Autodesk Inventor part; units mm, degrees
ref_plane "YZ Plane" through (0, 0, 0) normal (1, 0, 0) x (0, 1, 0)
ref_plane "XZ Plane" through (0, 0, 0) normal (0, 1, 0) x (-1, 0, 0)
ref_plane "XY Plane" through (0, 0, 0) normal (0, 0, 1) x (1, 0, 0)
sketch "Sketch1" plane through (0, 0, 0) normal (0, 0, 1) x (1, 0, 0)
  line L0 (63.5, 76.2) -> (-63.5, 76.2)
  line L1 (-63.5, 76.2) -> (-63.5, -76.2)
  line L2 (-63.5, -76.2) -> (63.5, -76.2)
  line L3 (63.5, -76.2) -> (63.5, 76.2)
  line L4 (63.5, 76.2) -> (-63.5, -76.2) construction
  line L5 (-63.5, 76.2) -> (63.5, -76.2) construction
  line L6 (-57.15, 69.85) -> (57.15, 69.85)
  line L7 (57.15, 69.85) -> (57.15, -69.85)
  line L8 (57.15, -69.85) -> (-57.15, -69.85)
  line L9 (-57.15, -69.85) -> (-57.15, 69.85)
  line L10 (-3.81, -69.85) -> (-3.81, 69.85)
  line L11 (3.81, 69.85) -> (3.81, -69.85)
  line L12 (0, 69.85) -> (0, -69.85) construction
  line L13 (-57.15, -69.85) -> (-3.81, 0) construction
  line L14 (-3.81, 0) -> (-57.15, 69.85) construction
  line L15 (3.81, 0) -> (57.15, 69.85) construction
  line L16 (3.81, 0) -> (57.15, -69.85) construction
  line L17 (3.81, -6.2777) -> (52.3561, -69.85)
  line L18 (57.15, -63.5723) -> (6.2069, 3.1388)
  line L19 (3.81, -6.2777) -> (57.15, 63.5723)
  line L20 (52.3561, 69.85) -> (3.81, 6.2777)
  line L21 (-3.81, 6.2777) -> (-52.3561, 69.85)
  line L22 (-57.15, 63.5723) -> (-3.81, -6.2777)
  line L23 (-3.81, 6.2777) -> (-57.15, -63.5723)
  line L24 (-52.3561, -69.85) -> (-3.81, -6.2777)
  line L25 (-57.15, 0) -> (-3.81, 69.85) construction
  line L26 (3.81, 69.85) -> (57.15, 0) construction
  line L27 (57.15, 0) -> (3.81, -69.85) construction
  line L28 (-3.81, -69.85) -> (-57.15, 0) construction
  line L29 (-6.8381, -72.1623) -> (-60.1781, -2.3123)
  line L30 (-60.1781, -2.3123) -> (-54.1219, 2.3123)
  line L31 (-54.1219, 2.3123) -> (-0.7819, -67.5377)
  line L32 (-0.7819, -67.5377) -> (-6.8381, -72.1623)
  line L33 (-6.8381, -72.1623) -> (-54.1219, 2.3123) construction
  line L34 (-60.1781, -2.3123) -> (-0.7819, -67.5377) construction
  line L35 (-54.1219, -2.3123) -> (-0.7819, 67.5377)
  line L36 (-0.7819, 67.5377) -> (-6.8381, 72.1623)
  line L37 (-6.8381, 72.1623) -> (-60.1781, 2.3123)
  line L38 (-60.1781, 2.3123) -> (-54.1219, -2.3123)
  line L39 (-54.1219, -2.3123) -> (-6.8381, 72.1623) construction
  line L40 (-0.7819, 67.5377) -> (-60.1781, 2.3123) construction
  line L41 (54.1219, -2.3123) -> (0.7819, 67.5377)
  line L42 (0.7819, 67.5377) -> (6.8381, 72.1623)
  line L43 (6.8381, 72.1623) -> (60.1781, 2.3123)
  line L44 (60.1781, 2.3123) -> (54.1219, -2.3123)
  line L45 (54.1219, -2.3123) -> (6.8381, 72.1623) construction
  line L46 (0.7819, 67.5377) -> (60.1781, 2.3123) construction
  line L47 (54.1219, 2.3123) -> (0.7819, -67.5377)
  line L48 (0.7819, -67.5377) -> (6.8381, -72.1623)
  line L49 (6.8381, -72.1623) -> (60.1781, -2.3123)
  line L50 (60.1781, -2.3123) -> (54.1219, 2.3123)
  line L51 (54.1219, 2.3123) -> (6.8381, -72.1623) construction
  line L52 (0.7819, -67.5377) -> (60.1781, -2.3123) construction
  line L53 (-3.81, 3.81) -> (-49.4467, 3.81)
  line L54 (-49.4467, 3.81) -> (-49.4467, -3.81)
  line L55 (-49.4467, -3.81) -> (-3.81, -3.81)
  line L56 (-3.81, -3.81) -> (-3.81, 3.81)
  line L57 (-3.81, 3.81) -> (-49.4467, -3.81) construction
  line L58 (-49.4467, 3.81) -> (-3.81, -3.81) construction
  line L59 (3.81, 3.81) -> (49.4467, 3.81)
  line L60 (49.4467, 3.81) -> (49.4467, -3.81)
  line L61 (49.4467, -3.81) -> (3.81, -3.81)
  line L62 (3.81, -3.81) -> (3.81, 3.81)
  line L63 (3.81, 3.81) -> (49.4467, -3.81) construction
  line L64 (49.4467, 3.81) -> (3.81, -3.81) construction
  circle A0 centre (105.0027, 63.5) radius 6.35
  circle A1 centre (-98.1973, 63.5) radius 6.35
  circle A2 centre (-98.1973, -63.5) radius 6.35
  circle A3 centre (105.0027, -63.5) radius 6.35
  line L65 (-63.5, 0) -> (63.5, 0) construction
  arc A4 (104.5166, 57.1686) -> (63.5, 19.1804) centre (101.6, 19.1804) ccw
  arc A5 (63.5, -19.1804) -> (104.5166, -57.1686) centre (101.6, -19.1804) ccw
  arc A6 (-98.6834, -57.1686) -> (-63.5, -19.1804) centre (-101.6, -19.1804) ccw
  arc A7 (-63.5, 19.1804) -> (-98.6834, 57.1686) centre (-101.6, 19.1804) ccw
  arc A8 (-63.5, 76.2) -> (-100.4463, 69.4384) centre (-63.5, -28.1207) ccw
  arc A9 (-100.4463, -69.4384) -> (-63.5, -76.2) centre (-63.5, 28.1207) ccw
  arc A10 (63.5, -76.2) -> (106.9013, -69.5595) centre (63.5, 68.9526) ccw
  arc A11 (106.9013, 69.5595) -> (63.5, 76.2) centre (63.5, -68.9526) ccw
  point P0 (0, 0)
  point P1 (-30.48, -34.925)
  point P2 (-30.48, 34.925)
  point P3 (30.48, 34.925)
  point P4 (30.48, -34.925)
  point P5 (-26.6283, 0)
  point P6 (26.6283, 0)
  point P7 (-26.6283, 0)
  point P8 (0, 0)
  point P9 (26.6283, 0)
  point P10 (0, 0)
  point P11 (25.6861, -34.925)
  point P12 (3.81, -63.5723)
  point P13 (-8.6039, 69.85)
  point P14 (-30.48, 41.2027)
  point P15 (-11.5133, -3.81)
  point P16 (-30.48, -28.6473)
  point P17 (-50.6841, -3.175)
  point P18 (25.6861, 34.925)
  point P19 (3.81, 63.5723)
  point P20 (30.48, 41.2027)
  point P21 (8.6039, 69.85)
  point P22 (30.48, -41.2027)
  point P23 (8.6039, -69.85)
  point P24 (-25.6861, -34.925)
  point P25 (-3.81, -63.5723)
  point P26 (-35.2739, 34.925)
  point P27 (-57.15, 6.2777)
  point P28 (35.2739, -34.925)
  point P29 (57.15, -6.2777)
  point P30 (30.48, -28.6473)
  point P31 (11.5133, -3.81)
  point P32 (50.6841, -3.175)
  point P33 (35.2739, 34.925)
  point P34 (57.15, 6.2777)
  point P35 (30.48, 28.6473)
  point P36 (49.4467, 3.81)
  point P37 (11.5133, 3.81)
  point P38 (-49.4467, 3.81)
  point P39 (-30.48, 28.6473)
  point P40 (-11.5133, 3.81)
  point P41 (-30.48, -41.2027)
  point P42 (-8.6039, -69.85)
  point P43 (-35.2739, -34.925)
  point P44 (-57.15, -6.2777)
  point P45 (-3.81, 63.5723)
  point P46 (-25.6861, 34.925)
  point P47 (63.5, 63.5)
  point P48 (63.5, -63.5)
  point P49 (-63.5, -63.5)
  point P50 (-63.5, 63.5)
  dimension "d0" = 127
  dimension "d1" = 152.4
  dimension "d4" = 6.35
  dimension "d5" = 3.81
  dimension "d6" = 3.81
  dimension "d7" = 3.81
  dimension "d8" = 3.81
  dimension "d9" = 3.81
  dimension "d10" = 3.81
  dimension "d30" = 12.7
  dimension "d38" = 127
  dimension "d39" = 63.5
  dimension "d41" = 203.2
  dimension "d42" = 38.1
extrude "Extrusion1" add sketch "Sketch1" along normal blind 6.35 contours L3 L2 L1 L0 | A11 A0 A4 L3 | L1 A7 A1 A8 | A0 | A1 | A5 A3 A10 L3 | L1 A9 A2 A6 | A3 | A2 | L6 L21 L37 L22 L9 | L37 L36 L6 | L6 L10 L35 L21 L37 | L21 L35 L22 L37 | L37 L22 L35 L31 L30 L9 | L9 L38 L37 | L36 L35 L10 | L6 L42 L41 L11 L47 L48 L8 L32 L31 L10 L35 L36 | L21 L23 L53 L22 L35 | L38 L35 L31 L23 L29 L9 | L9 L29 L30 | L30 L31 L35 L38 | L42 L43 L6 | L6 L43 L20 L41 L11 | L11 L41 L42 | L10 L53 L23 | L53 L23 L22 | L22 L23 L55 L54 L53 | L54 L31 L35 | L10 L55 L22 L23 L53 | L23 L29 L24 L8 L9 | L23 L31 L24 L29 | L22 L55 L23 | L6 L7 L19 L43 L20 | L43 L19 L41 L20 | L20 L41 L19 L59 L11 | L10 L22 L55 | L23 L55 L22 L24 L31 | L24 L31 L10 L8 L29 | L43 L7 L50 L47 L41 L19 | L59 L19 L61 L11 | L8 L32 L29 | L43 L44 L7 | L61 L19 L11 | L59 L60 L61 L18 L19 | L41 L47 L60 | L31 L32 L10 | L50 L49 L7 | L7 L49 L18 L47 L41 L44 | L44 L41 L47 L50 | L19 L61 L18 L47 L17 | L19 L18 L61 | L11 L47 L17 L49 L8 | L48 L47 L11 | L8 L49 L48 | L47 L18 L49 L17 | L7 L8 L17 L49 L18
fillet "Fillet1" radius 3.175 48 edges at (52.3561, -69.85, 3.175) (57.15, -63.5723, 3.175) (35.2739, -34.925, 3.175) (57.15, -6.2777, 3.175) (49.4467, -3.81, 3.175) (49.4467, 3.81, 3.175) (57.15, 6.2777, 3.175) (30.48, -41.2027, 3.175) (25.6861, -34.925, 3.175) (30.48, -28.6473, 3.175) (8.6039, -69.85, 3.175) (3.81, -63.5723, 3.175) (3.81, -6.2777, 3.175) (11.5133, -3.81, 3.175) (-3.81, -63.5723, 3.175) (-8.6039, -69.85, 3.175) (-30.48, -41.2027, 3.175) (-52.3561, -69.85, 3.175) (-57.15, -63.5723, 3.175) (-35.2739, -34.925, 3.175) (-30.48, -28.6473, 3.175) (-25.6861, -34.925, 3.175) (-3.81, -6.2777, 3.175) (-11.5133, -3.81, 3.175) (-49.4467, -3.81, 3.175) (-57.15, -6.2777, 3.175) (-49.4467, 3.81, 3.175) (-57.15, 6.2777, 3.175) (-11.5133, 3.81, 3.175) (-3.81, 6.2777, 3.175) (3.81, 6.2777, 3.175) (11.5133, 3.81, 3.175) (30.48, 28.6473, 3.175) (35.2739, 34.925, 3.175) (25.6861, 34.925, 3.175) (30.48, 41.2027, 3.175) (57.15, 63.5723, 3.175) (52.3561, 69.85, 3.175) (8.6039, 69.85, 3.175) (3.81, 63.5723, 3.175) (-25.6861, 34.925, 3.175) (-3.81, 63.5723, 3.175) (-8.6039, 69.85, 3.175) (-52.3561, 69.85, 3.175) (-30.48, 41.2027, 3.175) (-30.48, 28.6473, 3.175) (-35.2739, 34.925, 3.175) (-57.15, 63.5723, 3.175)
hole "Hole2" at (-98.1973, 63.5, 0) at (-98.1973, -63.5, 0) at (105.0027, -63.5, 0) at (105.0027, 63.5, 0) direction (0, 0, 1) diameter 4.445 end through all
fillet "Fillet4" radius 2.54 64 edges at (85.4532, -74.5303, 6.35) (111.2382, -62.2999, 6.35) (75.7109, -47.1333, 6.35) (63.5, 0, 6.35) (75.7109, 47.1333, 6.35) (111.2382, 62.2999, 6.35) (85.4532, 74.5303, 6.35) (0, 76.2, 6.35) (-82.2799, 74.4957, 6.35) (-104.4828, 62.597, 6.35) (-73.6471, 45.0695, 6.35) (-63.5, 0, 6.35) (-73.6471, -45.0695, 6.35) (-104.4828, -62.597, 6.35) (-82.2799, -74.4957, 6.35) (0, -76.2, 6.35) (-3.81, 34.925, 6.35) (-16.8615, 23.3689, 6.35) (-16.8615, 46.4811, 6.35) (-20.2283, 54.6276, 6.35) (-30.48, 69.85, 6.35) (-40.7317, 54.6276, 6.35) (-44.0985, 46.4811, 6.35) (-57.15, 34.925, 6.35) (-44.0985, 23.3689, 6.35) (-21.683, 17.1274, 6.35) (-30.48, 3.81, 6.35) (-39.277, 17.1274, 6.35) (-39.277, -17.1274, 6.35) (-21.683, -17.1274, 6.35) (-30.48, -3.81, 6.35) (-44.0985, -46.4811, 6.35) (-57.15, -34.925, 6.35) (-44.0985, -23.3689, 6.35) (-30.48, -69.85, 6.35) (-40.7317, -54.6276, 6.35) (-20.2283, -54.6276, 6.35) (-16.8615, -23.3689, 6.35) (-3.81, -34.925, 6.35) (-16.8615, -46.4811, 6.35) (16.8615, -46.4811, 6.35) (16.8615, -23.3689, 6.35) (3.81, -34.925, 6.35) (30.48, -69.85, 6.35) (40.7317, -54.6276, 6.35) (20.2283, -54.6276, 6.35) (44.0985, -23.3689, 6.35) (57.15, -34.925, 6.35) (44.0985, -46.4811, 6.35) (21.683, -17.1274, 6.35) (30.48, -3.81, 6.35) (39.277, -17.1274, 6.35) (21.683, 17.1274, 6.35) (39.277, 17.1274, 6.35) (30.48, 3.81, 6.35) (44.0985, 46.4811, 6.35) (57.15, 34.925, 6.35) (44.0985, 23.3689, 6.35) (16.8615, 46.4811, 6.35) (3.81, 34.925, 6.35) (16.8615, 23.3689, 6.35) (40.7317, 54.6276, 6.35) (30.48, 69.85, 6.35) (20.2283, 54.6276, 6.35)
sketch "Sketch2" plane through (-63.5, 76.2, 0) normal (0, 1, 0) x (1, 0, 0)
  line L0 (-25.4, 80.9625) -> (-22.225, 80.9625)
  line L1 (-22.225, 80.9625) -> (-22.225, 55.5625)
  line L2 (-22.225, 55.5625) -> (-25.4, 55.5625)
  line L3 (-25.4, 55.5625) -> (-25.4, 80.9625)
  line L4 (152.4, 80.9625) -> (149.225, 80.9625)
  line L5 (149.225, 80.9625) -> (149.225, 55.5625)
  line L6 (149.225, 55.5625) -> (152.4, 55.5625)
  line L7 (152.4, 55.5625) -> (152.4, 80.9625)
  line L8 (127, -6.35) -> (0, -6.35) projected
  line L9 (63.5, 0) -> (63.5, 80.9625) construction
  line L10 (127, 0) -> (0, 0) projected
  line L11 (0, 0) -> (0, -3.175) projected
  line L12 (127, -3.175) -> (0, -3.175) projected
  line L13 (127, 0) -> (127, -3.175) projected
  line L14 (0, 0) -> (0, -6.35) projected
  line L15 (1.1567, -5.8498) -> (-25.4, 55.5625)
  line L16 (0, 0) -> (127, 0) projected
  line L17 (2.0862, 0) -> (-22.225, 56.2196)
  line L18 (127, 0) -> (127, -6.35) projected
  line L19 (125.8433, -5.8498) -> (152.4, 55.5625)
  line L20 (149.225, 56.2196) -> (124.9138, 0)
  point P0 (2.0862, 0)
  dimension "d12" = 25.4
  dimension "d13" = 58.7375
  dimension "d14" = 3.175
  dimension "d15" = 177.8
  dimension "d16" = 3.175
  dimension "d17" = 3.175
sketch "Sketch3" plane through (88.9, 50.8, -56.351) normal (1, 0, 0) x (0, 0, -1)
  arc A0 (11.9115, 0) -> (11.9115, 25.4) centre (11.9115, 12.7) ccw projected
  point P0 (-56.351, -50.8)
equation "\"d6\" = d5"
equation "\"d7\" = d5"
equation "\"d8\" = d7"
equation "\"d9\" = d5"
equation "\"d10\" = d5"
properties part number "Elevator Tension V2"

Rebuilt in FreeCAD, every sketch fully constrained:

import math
import FreeCAD as App
import Part
import Sketcher

V = App.Vector
Q = App.Units.Quantity


def edges_at(feature, points):
    """Names of the edges that pass closest to the given points."""
    edges = feature.Shape.Edges
    near = lambda p: min(range(len(edges)), key=lambda i: edges[i].distToShape(Part.Vertex(*p))[0])
    return sorted({f"Edge{near(p) + 1}" for p in points})


def add_polygon(sketch, points):
    """Adds a closed chain of lines whose ends are joined by coincident constraints."""
    first, n = sketch.GeometryCount, len(points)
    for a, b in zip(points, points[1:] + points[:1]):
        sketch.addGeometry(Part.LineSegment(App.Vector(*a, 0), App.Vector(*b, 0)), False)
    for i in range(n):
        sketch.addConstraint(Sketcher.Constraint("Coincident", first + i, 2, first + (i + 1) % n, 1))

doc = App.newDocument("Part")
body = doc.addObject("PartDesign::Body", "Body")

sketch1 = doc.addObject("Sketcher::SketchObject", "Sketch")
body.addObject(sketch1)
sketch1.AttachmentSupport = (doc.XY_Plane, [""])
sketch1.MapMode = "FlatFace"
sketch1.addGeometry(Part.LineSegment(V(64, -19, 0), V(64, 19, 0)), False)
sketch1.addGeometry(Part.ArcOfCircle(Part.Circle(V(102, 19, 0), V(0, 0, 1), 38), math.radians(86), math.radians(180)), False)
sketch1.addGeometry(Part.ArcOfCircle(Part.Circle(V(105, 64, 0), V(0, 0, 1), 6), math.radians(-94), math.radians(73)), False)
sketch1.addGeometry(Part.ArcOfCircle(Part.Circle(V(64, -69, 0), V(0, 0, 1), 145), math.radians(72.6), math.radians(90)), False)
sketch1.addGeometry(Part.LineSegment(V(64, 76, 0), V(-64, 76, 0)), False)
sketch1.addGeometry(Part.ArcOfCircle(Part.Circle(V(-64, -28, 0), V(0, 0, 1), 104), math.radians(90), math.radians(111)), False)
sketch1.addGeometry(Part.ArcOfCircle(Part.Circle(V(-98, 64, 0), V(0, 0, 1), 6), math.radians(111), math.radians(266)), False)
sketch1.addGeometry(Part.ArcOfCircle(Part.Circle(V(-102, 19, 0), V(0, 0, 1), 38), math.radians(0), math.radians(86)), False)
sketch1.addGeometry(Part.LineSegment(V(-64, 19, 0), V(-64, -19, 0)), False)
sketch1.addGeometry(Part.ArcOfCircle(Part.Circle(V(-102, -19, 0), V(0, 0, 1), 38), math.radians(-86), math.radians(0)), False)
sketch1.addGeometry(Part.ArcOfCircle(Part.Circle(V(-98, -64, 0), V(0, 0, 1), 6), math.radians(94), math.radians(249)), False)
sketch1.addGeometry(Part.ArcOfCircle(Part.Circle(V(-64, 28, 0), V(0, 0, 1), 104), math.radians(-111), math.radians(-90)), False)
sketch1.addGeometry(Part.LineSegment(V(-64, -76, 0), V(64, -76, 0)), False)
sketch1.addGeometry(Part.ArcOfCircle(Part.Circle(V(64, 69, 0), V(0, 0, 1), 145), math.radians(-90), math.radians(-72.6)), False)
sketch1.addGeometry(Part.ArcOfCircle(Part.Circle(V(105, -64, 0), V(0, 0, 1), 6), math.radians(-73), math.radians(94)), False)
sketch1.addGeometry(Part.ArcOfCircle(Part.Circle(V(102, -19, 0), V(0, 0, 1), 38), math.radians(180), math.radians(274)), False)
add_polygon(sketch1, [(-57, 6), (-57, 64), (-35, 35)])
add_polygon(sketch1, [(-57, -64), (-57, -6), (-35, -35)])
add_polygon(sketch1, [(-9, -70), (-52, -70), (-30, -41)])
add_polygon(sketch1, [(52, -70), (9, -70), (30, -41)])
add_polygon(sketch1, [(57, -6), (57, -64), (35, -35)])
add_polygon(sketch1, [(57, 64), (57, 6), (35, 35)])
add_polygon(sketch1, [(9, 70), (52, 70), (30, 41)])
add_polygon(sketch1, [(-52, 70), (-9, 70), (-30, 41)])
add_polygon(sketch1, [(4, 6), (4, 64), (26, 35)])
add_polygon(sketch1, [(4, -64), (4, -6), (26, -35)])
add_polygon(sketch1, [(-4, -6), (-4, -64), (-26, -35)])
add_polygon(sketch1, [(-4, 64), (-4, 6), (-26, 35)])
add_polygon(sketch1, [(-49, 4), (-30, 29), (-12, 4)])
add_polygon(sketch1, [(-30, -29), (-49, -4), (-12, -4)])
add_polygon(sketch1, [(12, 4), (30, 29), (49, 4)])
add_polygon(sketch1, [(49, -4), (30, -29), (12, -4)])
sketch1.addConstraint([
    Sketcher.Constraint("Tangent", 0, 2, 1, 2),
    Sketcher.Constraint("Tangent", 1, 1, 2, 1),
    Sketcher.Constraint("Tangent", 2, 2, 3, 1),
    Sketcher.Constraint("Tangent", 3, 2, 4, 1),
    Sketcher.Constraint("Tangent", 4, 2, 5, 1),
    Sketcher.Constraint("Tangent", 5, 2, 6, 1),
    Sketcher.Constraint("Tangent", 6, 2, 7, 2),
    Sketcher.Constraint("Tangent", 7, 1, 8, 1),
    Sketcher.Constraint("Tangent", 8, 2, 9, 2),
    Sketcher.Constraint("Tangent", 9, 1, 10, 1),
    Sketcher.Constraint("Tangent", 10, 2, 11, 1),
    Sketcher.Constraint("Tangent", 11, 2, 12, 1),
    Sketcher.Constraint("Tangent", 12, 2, 13, 1),
    Sketcher.Constraint("Tangent", 13, 2, 14, 1),
    Sketcher.Constraint("Tangent", 14, 2, 15, 2),
    Sketcher.Constraint("Tangent", 15, 1, 0, 1),
    Sketcher.Constraint("Vertical", 0),
    Sketcher.Constraint("Horizontal", 4),
    Sketcher.Constraint("Vertical", 8),
    Sketcher.Constraint("Horizontal", 12),
    Sketcher.Constraint("Vertical", 16),
    Sketcher.Constraint("Vertical", 19),
    Sketcher.Constraint("Horizontal", 22),
    Sketcher.Constraint("Horizontal", 25),
    Sketcher.Constraint("Vertical", 28),
    Sketcher.Constraint("Vertical", 31),
    Sketcher.Constraint("Horizontal", 34),
    Sketcher.Constraint("Horizontal", 37),
    Sketcher.Constraint("Vertical", 40),
    Sketcher.Constraint("Vertical", 43),
    Sketcher.Constraint("Vertical", 46),
    Sketcher.Constraint("Vertical", 49),
    Sketcher.Constraint("Horizontal", 54),
    Sketcher.Constraint("Horizontal", 56),
    Sketcher.Constraint("Horizontal", 60),
    Sketcher.Constraint("Horizontal", 63),
    Sketcher.Constraint("Equal", 2, 6),
    Sketcher.Constraint("Equal", 1, 7),
    Sketcher.Constraint("Equal", 7, 9),
    Sketcher.Constraint("Equal", 6, 10),
    Sketcher.Constraint("Equal", 5, 11),
    Sketcher.Constraint("Equal", 3, 13),
    Sketcher.Constraint("Equal", 10, 14),
    Sketcher.Constraint("Equal", 9, 15),
    Sketcher.Constraint("Symmetric", 1, 3, 9, 3, -1, 1),
    Sketcher.Constraint("Symmetric", 3, 2, 11, 2, -1, 1),
    Sketcher.Constraint("Symmetric", 16, 2, 28, 2, -1, 1),
    Sketcher.Constraint("Symmetric", 17, 2, 29, 2, -1, 1),
    Sketcher.Constraint("Symmetric", 19, 2, 31, 2, -1, 1),
    Sketcher.Constraint("Symmetric", 20, 2, 32, 2, -1, 1),
    Sketcher.Constraint("Symmetric", 22, 2, 34, 2, -1, 1),
    Sketcher.Constraint("Symmetric", 23, 2, 35, 2, -1, 1),
    Sketcher.Constraint("Symmetric", 25, 2, 37, 2, -1, 1),
    Sketcher.Constraint("Symmetric", 26, 2, 38, 2, -1, 1),
    Sketcher.Constraint("Symmetric", 40, 2, 46, 2, -1, 1),
    Sketcher.Constraint("Symmetric", 41, 2, 47, 2, -1, 1),
    Sketcher.Constraint("Symmetric", 43, 2, 49, 2, -1, 1),
    Sketcher.Constraint("Symmetric", 44, 2, 50, 2, -1, 1),
    Sketcher.Constraint("Symmetric", 57, 2, 58, 2, -1, 1),
    Sketcher.Constraint("Symmetric", 55, 2, 59, 2, -1, 1),
    Sketcher.Constraint("Symmetric", 52, 2, 61, 2, -1, 1),
    Sketcher.Constraint("Symmetric", 53, 2, 62, 2, -1, 1),
    Sketcher.Constraint("Symmetric", 24, 2, 25, 2, -2),
    Sketcher.Constraint("Symmetric", 23, 2, 26, 2, -2),
    Sketcher.Constraint("Symmetric", 21, 2, 28, 2, -2),
    Sketcher.Constraint("Symmetric", 20, 2, 29, 2, -2),
    Sketcher.Constraint("Symmetric", 45, 2, 46, 2, -2),
    Sketcher.Constraint("Symmetric", 44, 2, 47, 2, -2),
    Sketcher.Constraint("Symmetric", 52, 2, 58, 2, -2),
    Sketcher.Constraint("Symmetric", 54, 2, 59, 2, -2),
    Sketcher.Constraint("Symmetric", 6, 3, 10, 3, -1),
    Sketcher.Constraint("Symmetric", 2, 3, 14, 3, -1),
    Sketcher.Constraint("Parallel", 17, 20),
    Sketcher.Constraint("Parallel", 18, 21),
    Sketcher.Constraint("Parallel", 21, 23),
    Sketcher.Constraint("Parallel", 20, 24),
    Sketcher.Constraint("Parallel", 24, 27),
    Sketcher.Constraint("Parallel", 26, 30),
    Sketcher.Constraint("Parallel", 30, 33),
    Sketcher.Constraint("Parallel", 32, 36),
    Sketcher.Constraint("Parallel", 36, 39),
    Sketcher.Constraint("Parallel", 39, 41),
    Sketcher.Constraint("Parallel", 38, 42),
    Sketcher.Constraint("Parallel", 41, 44),
    Sketcher.Constraint("Parallel", 45, 48),
    Sketcher.Constraint("Parallel", 48, 51),
    Sketcher.Constraint("Parallel", 51, 52),
    Sketcher.Constraint("Parallel", 50, 53),
    Sketcher.Constraint("Parallel", 52, 57),
    Sketcher.Constraint("Parallel", 57, 58),
    Sketcher.Constraint("Parallel", 58, 61),
    Sketcher.Constraint("Horizontal", 2, 3, 6, 3),
    Sketcher.Constraint("Horizontal", 33, 2, 40, 2),
    Sketcher.Constraint("Horizontal", 32, 2, 41, 2),
    Sketcher.Constraint("Vertical", 13, 3, 0, 2),
    Sketcher.Constraint("Vertical", 38, 2, 52, 2),
    Sketcher.Constraint("Equal", 21, 23),
    Sketcher.Constraint("Radius", 1, Q("1.5 in")),
    Sketcher.Constraint("DistanceX", 4, 2, 4, 1, Q("5 in")),
    Sketcher.Constraint("Radius", 2, Q("0.25 in")),
    Sketcher.Constraint("DistanceY", -1, 1, 2, 3, Q("2.5 in")),
    Sketcher.Constraint("DistanceX", -1, 1, 40, 2, Q("0.15 in")),
    Sketcher.Constraint("DistanceY", -1, 1, 53, 2, Q("0.15 in")),
    Sketcher.Constraint("DistanceY", -1, 1, 3, 2, Q("3 in")),
    Sketcher.Constraint("DistanceX", 23, 2, -1, 1, Q("1.2 in")),
    Sketcher.Constraint("DistanceX", 16, 2, -1, 1, Q("2.25 in")),
    Sketcher.Constraint("DistanceY", 22, 2, -1, 1, Q("2.75 in")),
    Sketcher.Constraint("Radius", 3, Q("145.1526 mm")),
    Sketcher.Constraint("DistanceY", 16, 1, 16, 2, Q("2.2557 in")),
    Sketcher.Constraint("DistanceY", -1, 1, 17, 2, Q("1.375 in")),
    Sketcher.Constraint("Distance", 17, Q("1.4191 in")),
    Sketcher.Constraint("DistanceX", 54, 2, 54, 1, Q("37.9334 mm")),
])
pad1 = doc.addObject("PartDesign::Pad", "Pad")
body.addObject(pad1)
pad1.Profile = sketch1
pad1.Length = Q("0.25 in")
doc.recompute()

fillet = doc.addObject("PartDesign::Fillet", "Fillet")
body.addObject(fillet)
fillet.Base = (pad1, edges_at(pad1, [
    (52.356, -69.85, 3.175),
    (57.15, -63.572, 3.175),
    (35.274, -34.925, 3.175),
    (57.15, -6.278, 3.175),
    (49.447, -3.81, 3.175),
    (49.447, 3.81, 3.175),
    (57.15, 6.278, 3.175),
    (30.48, -41.203, 3.175),
    (25.686, -34.925, 3.175),
    (30.48, -28.647, 3.175),
    (8.604, -69.85, 3.175),
    (3.81, -63.572, 3.175),
    (3.81, -6.278, 3.175),
    (11.513, -3.81, 3.175),
    (-3.81, -63.572, 3.175),
    (-8.604, -69.85, 3.175),
    (-30.48, -41.203, 3.175),
    (-52.356, -69.85, 3.175),
    (-57.15, -63.572, 3.175),
    (-35.274, -34.925, 3.175),
    (-30.48, -28.647, 3.175),
    (-25.686, -34.925, 3.175),
    (-3.81, -6.278, 3.175),
    (-11.513, -3.81, 3.175),
    (-49.447, -3.81, 3.175),
    (-57.15, -6.278, 3.175),
    (-49.447, 3.81, 3.175),
    (-57.15, 6.278, 3.175),
    (-11.513, 3.81, 3.175),
    (-3.81, 6.278, 3.175),
    (3.81, 6.278, 3.175),
    (11.513, 3.81, 3.175),
    (30.48, 28.647, 3.175),
    (35.274, 34.925, 3.175),
    (25.686, 34.925, 3.175),
    (30.48, 41.203, 3.175),
    (57.15, 63.572, 3.175),
    (52.356, 69.85, 3.175),
    (8.604, 69.85, 3.175),
    (3.81, 63.572, 3.175),
    (-25.686, 34.925, 3.175),
    (-3.81, 63.572, 3.175),
    (-8.604, 69.85, 3.175),
    (-52.356, 69.85, 3.175),
    (-30.48, 41.203, 3.175),
    (-30.48, 28.647, 3.175),
    (-35.274, 34.925, 3.175),
    (-57.15, 63.572, 3.175),
]))
fillet.Radius = Q("0.125 in")

sketch2 = doc.addObject("Sketcher::SketchObject", "Sketch001")
body.addObject(sketch2)
sketch2.AttachmentSupport = (doc.XY_Plane, [""])
sketch2.MapMode = "FlatFace"
sketch2.addGeometry([
    Part.Circle(V(-98.2, 63.5, 0), V(0, 0, 1), 2.2),
    Part.Circle(V(-98.2, -63.5, 0), V(0, 0, 1), 2.2),
    Part.Circle(V(105, -63.5, 0), V(0, 0, 1), 2.2),
    Part.Circle(V(105, 63.5, 0), V(0, 0, 1), 2.2),
], False)
sketch2.addConstraint([
    Sketcher.Constraint("Equal", 0, 1),
    Sketcher.Constraint("Equal", 1, 2),
    Sketcher.Constraint("Equal", 2, 3),
    Sketcher.Constraint("Symmetric", 0, 3, 1, 3, -1),
    Sketcher.Constraint("Symmetric", 2, 3, 3, 3, -1),
    Sketcher.Constraint("Horizontal", 1, 3, 2, 3),
    Sketcher.Constraint("Diameter", 0, Q("0.175 in")),
    Sketcher.Constraint("DistanceY", 1, 3, 0, 3, Q("5 in")),
    Sketcher.Constraint("DistanceX", 1, 3, 2, 3, Q("8 in")),
    Sketcher.Constraint("DistanceX", 0, 3, -1, 1, Q("98.1973 mm")),
])
doc.recompute()
hole = doc.addObject("PartDesign::Hole", "Hole")
body.addObject(hole)
hole.Profile = sketch2
hole.ThreadType = "None"
hole.Diameter = Q("0.175 in")
hole.DepthType = "ThroughAll"
hole.Reversed = True
doc.recompute()

fillet2 = doc.addObject("PartDesign::Fillet", "Fillet001")
body.addObject(fillet2)
fillet2.Base = (hole, edges_at(hole, [
    (85.453, -74.53, 6.35),
    (111.238, -62.3, 6.35),
    (75.711, -47.133, 6.35),
    (63.5, 0, 6.35),
    (75.711, 47.133, 6.35),
    (111.238, 62.3, 6.35),
    (85.453, 74.53, 6.35),
    (0, 76.2, 6.35),
    (-82.28, 74.496, 6.35),
    (-104.483, 62.597, 6.35),
    (-73.647, 45.069, 6.35),
    (-63.5, 0, 6.35),
    (-73.647, -45.069, 6.35),
    (-104.483, -62.597, 6.35),
    (-82.28, -74.496, 6.35),
    (0, -76.2, 6.35),
    (-3.81, 34.925, 6.35),
    (-16.861, 23.369, 6.35),
    (-16.861, 46.481, 6.35),
    (-20.228, 54.628, 6.35),
    (-30.48, 69.85, 6.35),
    (-40.732, 54.628, 6.35),
    (-44.099, 46.481, 6.35),
    (-57.15, 34.925, 6.35),
    (-44.099, 23.369, 6.35),
    (-21.683, 17.127, 6.35),
    (-30.48, 3.81, 6.35),
    (-39.277, 17.127, 6.35),
    (-39.277, -17.127, 6.35),
    (-21.683, -17.127, 6.35),
    (-30.48, -3.81, 6.35),
    (-44.099, -46.481, 6.35),
    (-57.15, -34.925, 6.35),
    (-44.099, -23.369, 6.35),
    (-30.48, -69.85, 6.35),
    (-40.732, -54.628, 6.35),
    (-20.228, -54.628, 6.35),
    (-16.861, -23.369, 6.35),
    (-3.81, -34.925, 6.35),
    (-16.861, -46.481, 6.35),
    (16.861, -46.481, 6.35),
    (16.861, -23.369, 6.35),
    (3.81, -34.925, 6.35),
    (30.48, -69.85, 6.35),
    (40.732, -54.628, 6.35),
    (20.228, -54.628, 6.35),
    (44.099, -23.369, 6.35),
    (57.15, -34.925, 6.35),
    (44.099, -46.481, 6.35),
    (21.683, -17.127, 6.35),
    (30.48, -3.81, 6.35),
    (39.277, -17.127, 6.35),
    (21.683, 17.127, 6.35),
    (39.277, 17.127, 6.35),
    (30.48, 3.81, 6.35),
    (44.099, 46.481, 6.35),
    (57.15, 34.925, 6.35),
    (44.099, 23.369, 6.35),
    (16.861, 46.481, 6.35),
    (3.81, 34.925, 6.35),
    (16.861, 23.369, 6.35),
    (40.732, 54.628, 6.35),
    (30.48, 69.85, 6.35),
    (20.228, 54.628, 6.35),
]))
fillet2.Radius = Q("0.1 in")

doc.recompute()
